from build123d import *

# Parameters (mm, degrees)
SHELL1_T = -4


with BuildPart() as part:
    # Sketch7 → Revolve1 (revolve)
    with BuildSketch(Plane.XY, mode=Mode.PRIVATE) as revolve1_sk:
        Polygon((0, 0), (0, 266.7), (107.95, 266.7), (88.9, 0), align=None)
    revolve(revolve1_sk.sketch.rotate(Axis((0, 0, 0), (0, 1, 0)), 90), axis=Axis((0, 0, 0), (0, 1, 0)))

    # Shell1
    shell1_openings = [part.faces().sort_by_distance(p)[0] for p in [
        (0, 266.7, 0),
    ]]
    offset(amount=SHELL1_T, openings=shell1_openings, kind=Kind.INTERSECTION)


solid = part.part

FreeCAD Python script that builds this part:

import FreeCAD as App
import Part
import Sketcher

V = App.Vector
Q = App.Units.Quantity


def faces_at(feature, points):
    """Names of the faces that lie closest to the given points."""
    faces = feature.Shape.Faces
    near = lambda p: min(range(len(faces)), key=lambda i: faces[i].distToShape(Part.Vertex(*p))[0])
    return sorted({f"Face{near(p) + 1}" for p in points})

doc = App.newDocument("Part")
body = doc.addObject("PartDesign::Body", "Body")

# Sketch on XY plane
sketch1 = body.newObject("Sketcher::SketchObject", "Sketch")
sketch1.AttachmentSupport = (doc.getObject("XY_Plane"), [""])
sketch1.MapMode = "FlatFace"
sketch1.addGeometry([
    Part.LineSegment(V(0, 266.7, 0), V(0, 0, 0)),
    Part.LineSegment(V(0, 0, 0), V(88.9, 0, 0)),
    Part.LineSegment(V(88.9, 0, 0), V(107.95, 266.7, 0)),
    Part.LineSegment(V(107.95, 266.7, 0), V(0, 266.7, 0)),
], False)
sketch1.addConstraint([
    Sketcher.Constraint("Coincident", 0, 2, 1, 1),
    Sketcher.Constraint("Coincident", 1, 2, 2, 1),
    Sketcher.Constraint("Coincident", 2, 2, 3, 1),
    Sketcher.Constraint("Coincident", 3, 2, 0, 1),
    Sketcher.Constraint("Vertical", 0),
    Sketcher.Constraint("Horizontal", 1),
    Sketcher.Constraint("Horizontal", 3),
    Sketcher.Constraint("Coincident", 0, 2, -1, 1),
    Sketcher.Constraint("DistanceX", 1, 1, 1, 2, Q("3.5 in")),
    Sketcher.Constraint("DistanceY", 0, 2, 0, 1, Q("10.5 in")),
    Sketcher.Constraint("DistanceX", 3, 2, 3, 1, Q("4.25 in")),
])
revolution = body.newObject("PartDesign::Revolution", "Revolution")
revolution.Profile = sketch1
revolution.ReferenceAxis = (sketch1, ["V_Axis"])
revolution.Angle = 360
doc.recompute()

thickness = body.newObject("PartDesign::Thickness", "Thickness")
thickness.Base = (revolution, faces_at(revolution, [(0, 266.7, 0)]))
thickness.Value = 4
thickness.Reversed = True
thickness.Join = "Intersection"

doc.recompute()
